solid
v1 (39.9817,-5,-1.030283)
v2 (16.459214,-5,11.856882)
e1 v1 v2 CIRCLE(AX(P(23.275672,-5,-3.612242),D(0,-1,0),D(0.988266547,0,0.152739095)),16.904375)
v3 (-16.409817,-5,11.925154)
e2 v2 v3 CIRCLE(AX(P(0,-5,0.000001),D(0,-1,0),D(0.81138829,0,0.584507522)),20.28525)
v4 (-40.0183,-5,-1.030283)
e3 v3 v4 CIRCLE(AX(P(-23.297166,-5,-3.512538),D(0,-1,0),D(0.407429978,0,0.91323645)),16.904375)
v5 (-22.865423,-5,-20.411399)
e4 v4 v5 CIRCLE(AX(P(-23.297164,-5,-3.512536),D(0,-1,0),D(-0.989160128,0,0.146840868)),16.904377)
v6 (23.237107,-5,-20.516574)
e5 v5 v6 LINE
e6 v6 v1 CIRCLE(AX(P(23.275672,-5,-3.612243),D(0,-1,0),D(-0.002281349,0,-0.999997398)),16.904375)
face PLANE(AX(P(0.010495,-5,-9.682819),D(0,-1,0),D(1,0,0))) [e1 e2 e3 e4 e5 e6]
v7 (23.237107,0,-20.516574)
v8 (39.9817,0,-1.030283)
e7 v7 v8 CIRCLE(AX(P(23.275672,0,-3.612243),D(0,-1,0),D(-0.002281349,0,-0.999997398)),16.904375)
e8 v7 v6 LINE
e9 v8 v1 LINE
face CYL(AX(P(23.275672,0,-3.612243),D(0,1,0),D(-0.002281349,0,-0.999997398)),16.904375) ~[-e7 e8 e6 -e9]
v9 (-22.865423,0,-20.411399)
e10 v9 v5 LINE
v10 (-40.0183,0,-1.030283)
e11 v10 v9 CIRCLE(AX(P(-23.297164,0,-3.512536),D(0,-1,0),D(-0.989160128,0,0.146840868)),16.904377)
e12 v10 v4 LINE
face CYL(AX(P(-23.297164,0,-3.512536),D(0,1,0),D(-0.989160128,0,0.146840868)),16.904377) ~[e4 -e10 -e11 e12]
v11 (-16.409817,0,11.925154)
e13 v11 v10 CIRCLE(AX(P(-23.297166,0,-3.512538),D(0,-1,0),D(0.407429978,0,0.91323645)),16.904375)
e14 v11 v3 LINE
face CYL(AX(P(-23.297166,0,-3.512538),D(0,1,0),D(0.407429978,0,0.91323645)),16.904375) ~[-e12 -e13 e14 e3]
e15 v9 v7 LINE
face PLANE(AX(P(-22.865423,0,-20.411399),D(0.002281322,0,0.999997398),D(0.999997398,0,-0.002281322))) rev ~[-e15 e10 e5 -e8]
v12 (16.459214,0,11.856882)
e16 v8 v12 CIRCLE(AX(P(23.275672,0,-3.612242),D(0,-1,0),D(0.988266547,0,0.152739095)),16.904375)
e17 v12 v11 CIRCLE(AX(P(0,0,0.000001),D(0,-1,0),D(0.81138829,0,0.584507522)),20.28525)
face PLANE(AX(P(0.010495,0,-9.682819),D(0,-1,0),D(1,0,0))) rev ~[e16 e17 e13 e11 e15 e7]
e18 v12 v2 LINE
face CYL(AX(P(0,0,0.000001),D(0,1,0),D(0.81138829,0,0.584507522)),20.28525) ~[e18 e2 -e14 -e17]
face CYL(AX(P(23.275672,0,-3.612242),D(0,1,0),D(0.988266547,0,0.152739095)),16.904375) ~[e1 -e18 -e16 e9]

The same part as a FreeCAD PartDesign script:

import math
import FreeCAD as App
import Part
import Sketcher

V = App.Vector

doc = App.newDocument("Part")
body = doc.addObject("PartDesign::Body", "Body")

# Sketch on XZ plane
sketch1 = body.newObject("Sketcher::SketchObject", "Sketch")
sketch1.AttachmentSupport = (doc.getObject("XZ_Plane"), [""])
sketch1.MapMode = "FlatFace"
sketch1.addGeometry(Part.ArcOfCircle(Part.Circle(V(23, -4, 0), V(0, 0, 1), 17), math.radians(-90), math.radians(9)), False)
sketch1.addGeometry(Part.ArcOfCircle(Part.Circle(V(23, -4, 0), V(0, 0, 1), 17), math.radians(9), math.radians(114)), False)
sketch1.addGeometry(Part.ArcOfCircle(Part.Circle(V(0, 0, 0), V(0, 0, 1), 20), math.radians(36), math.radians(144)), False)
sketch1.addGeometry(Part.ArcOfCircle(Part.Circle(V(-23, -4, 0), V(0, 0, 1), 17), math.radians(66), math.radians(172)), False)
sketch1.addGeometry(Part.ArcOfCircle(Part.Circle(V(-23, -4, 0), V(0, 0, 1), 17), math.radians(172), math.radians(271)), False)
sketch1.addGeometry(Part.LineSegment(V(-23, -20, 0), V(23, -21, 0)), False)
sketch1.addConstraint(Sketcher.Constraint("Tangent", 0, 2, 1, 1))
sketch1.addConstraint(Sketcher.Constraint("Coincident", 1, 2, 2, 1))
sketch1.addConstraint(Sketcher.Constraint("Coincident", 2, 2, 3, 1))
sketch1.addConstraint(Sketcher.Constraint("Tangent", 3, 2, 4, 1))
sketch1.addConstraint(Sketcher.Constraint("Coincident", 4, 2, 5, 1))
sketch1.addConstraint(Sketcher.Constraint("Tangent", 5, 2, 0, 1))
sketch1.addConstraint(Sketcher.Constraint("Coincident", 2, 3, -1, 1))
sketch1.addConstraint(Sketcher.Constraint("Equal", 0, 1))
sketch1.addConstraint(Sketcher.Constraint("Equal", 1, 3))
sketch1.addConstraint(Sketcher.Constraint("Equal", 3, 4))
sketch1.addConstraint(Sketcher.Constraint("Horizontal", 0, 2, 3, 2))
sketch1.addConstraint(Sketcher.Constraint("Radius", 2, 20.28525))
sketch1.addConstraint(Sketcher.Constraint("Radius", 0, 16.904375))
sketch1.addConstraint(Sketcher.Constraint("DistanceX", -1, 1, 0, 2, 39.9817))
sketch1.addConstraint(Sketcher.Constraint("DistanceX", 3, 2, -1, 1, 40.0183))
sketch1.addConstraint(Sketcher.Constraint("DistanceY", 4, 2, -1, 1, 20.411399))
sketch1.addConstraint(Sketcher.Constraint("Distance", 5, 46.10265))
sketch1.addConstraint(Sketcher.Constraint("DistanceX", -1, 1, 0, 3, 23.275672))
sketch1.addConstraint(Sketcher.Constraint("DistanceY", 1, 3, -1, 1, 3.612242))
pad1 = body.newObject("PartDesign::Pad", "Pad")
pad1.Profile = sketch1
pad1.Length = 5

doc.recompute()
